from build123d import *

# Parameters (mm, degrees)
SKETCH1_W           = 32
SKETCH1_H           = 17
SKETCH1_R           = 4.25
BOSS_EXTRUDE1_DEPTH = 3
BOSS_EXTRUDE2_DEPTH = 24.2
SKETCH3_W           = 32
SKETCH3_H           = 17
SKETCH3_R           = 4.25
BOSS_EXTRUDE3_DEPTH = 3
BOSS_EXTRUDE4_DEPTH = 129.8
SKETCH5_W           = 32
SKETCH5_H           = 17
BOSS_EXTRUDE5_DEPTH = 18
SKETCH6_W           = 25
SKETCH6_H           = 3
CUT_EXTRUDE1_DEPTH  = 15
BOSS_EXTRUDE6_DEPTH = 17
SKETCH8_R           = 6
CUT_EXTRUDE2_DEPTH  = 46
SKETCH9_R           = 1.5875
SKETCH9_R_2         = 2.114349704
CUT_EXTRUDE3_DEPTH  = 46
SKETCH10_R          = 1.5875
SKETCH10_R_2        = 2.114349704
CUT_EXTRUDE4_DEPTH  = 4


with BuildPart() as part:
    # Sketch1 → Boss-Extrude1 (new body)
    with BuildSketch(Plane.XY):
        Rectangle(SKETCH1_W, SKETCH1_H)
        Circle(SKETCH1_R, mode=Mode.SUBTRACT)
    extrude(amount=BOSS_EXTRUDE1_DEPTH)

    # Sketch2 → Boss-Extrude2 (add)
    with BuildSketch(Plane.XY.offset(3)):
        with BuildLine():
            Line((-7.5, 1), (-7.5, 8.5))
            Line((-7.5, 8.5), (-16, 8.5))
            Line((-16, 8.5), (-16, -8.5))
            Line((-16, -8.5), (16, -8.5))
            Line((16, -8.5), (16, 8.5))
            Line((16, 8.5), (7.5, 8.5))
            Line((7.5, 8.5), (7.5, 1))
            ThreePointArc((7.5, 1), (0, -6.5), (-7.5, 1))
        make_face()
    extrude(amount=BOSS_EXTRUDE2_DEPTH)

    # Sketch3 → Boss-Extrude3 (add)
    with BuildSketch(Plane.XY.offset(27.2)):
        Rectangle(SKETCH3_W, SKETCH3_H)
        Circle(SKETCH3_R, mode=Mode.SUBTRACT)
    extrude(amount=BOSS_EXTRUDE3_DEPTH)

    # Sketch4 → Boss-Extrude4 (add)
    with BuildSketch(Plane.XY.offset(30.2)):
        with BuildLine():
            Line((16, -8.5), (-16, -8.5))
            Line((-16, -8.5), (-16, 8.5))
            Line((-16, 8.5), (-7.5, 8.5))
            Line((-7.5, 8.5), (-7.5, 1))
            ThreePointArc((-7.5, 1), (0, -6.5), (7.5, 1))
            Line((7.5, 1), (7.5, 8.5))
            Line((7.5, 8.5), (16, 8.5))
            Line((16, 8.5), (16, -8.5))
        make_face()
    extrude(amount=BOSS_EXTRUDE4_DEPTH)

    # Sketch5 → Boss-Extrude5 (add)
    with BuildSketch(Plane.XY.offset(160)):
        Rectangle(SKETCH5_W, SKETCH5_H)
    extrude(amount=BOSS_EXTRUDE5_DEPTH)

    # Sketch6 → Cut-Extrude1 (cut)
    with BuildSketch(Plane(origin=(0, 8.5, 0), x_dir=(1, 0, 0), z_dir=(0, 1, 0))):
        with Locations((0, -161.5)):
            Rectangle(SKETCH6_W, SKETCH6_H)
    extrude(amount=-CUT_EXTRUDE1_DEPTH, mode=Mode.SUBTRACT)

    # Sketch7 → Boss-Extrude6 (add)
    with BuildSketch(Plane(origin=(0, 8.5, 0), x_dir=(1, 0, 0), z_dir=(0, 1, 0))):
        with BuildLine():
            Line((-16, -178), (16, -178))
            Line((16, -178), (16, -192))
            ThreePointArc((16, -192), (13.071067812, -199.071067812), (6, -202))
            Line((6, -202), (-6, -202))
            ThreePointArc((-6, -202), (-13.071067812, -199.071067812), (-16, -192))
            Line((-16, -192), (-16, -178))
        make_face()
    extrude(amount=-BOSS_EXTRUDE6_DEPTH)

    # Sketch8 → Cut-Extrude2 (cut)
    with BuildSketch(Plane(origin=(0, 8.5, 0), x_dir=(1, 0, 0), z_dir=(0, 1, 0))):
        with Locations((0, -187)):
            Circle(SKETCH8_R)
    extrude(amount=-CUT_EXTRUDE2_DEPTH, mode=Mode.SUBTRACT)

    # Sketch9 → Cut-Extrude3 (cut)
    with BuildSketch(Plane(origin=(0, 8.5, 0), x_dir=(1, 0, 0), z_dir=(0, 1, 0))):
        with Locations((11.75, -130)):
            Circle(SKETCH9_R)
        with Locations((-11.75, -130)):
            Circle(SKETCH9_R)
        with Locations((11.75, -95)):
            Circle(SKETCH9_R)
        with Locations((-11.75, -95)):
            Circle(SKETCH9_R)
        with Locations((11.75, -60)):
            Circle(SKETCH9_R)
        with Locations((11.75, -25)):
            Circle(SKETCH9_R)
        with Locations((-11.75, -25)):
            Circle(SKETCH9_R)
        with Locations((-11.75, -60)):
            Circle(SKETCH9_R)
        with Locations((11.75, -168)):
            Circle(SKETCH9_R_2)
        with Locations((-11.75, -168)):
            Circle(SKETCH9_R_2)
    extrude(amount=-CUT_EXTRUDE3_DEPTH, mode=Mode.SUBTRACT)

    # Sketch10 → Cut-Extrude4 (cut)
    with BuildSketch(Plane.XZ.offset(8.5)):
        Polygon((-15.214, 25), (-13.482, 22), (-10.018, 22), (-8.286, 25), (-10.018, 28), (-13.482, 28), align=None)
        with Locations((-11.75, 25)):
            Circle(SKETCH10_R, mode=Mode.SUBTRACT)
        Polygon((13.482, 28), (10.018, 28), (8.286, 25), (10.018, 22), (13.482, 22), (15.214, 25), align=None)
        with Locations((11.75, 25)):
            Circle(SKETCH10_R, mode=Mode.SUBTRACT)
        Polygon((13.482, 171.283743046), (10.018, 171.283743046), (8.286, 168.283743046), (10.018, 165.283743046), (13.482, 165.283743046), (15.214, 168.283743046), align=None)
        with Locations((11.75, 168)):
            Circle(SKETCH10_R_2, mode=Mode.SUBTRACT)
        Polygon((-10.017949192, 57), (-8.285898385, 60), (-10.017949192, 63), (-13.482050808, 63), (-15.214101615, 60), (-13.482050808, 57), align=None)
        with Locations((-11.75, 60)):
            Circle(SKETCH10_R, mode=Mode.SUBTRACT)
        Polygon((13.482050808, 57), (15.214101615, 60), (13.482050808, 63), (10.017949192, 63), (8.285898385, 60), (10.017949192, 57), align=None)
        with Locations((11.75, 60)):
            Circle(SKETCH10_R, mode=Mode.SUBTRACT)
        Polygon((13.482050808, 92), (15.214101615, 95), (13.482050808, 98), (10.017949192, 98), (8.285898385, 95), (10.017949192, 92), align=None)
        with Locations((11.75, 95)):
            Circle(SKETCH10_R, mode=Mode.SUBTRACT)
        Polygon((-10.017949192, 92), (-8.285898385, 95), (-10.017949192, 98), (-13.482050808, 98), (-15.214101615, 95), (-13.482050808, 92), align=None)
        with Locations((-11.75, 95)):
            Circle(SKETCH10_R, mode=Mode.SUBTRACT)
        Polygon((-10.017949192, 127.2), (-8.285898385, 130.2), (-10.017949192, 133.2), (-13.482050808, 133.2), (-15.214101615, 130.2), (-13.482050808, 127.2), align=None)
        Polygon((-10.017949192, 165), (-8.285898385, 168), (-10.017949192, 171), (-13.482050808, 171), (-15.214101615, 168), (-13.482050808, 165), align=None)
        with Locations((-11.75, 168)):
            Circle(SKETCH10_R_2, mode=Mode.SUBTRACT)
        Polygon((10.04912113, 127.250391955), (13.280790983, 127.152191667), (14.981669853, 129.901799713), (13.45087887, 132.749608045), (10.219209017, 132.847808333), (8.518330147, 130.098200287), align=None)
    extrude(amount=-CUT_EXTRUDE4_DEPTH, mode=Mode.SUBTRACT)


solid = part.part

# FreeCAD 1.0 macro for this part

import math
import FreeCAD as App
import Part
import Sketcher

V = App.Vector
Q = App.Units.Quantity


def add_polygon(sketch, points):
    """Adds a closed chain of lines whose ends are joined by coincident constraints."""
    first, n = sketch.GeometryCount, len(points)
    for a, b in zip(points, points[1:] + points[:1]):
        sketch.addGeometry(Part.LineSegment(App.Vector(*a, 0), App.Vector(*b, 0)), False)
    for i in range(n):
        sketch.addConstraint(Sketcher.Constraint("Coincident", first + i, 2, first + (i + 1) % n, 1))

doc = App.newDocument("Part")
params = doc.addObject("Spreadsheet::Sheet", "Params")
for row, (alias, value) in enumerate([
    ("sketch1_diameter", "8.5 mm"),
    ("sketch1_width", "32 mm"),
    ("sketch1_height", "17 mm"),
    ("pad1_length", "3 mm"),
    ("sketch2_radius", "7.5 mm"),
    ("sketch2_width", "32 mm"),
    ("sketch2_height", "17 mm"),
    ("sketch2_height2", "7.5 mm"),
    ("pad2_length", "24.2 mm"),
    ("sketch3_diameter", "8.5 mm"),
    ("sketch3_width", "32 mm"),
    ("sketch3_height", "17 mm"),
    ("pad3_length", "3 mm"),
    ("sketch4_radius", "7.5 mm"),
    ("sketch4_width", "32 mm"),
    ("sketch4_height", "17 mm"),
    ("sketch4_height2", "7.5 mm"),
    ("pad4_length", "129.8 mm"),
    ("sketch5_width", "32 mm"),
    ("sketch5_height", "17 mm"),
    ("pad5_length", "18 mm"),
    ("sketch6_width", "25 mm"),
    ("sketch6_height", "3 mm"),
    ("pocket1_length", "15 mm"),
    ("sketch7_radius", "10 mm"),
    ("sketch7_width", "32 mm"),
    ("sketch7_height", "14 mm"),
    ("pad6_length", "17 mm"),
    ("sketch8_diameter", "12 mm"),
    ("pocket2_length", "46 mm"),
    ("pocket3_length", "46 mm"),
    ("pocket4_length", "4 mm"),
], start=1):
    params.set(f"A{row}", alias)
    params.set(f"B{row}", "=" + value)
    params.setAlias(f"B{row}", alias)

body = doc.addObject("PartDesign::Body", "Body")

# Sketch on XY plane
sketch1 = body.newObject("Sketcher::SketchObject", "Sketch")
sketch1.AttachmentSupport = (doc.getObject("XY_Plane"), [""])
sketch1.MapMode = "FlatFace"
add_polygon(sketch1, [(-16, 8.5), (-16, -8.5), (16, -8.5), (16, 8.5)])  # lines 0-3
sketch1.addGeometry(Part.Circle(V(0, 0, 0), V(0, 0, 1), 4.2), False)  # 4
sketch1.addConstraint(Sketcher.Constraint("Vertical", 0))
sketch1.addConstraint(Sketcher.Constraint("Horizontal", 1))
sketch1.addConstraint(Sketcher.Constraint("Vertical", 2))
sketch1.addConstraint(Sketcher.Constraint("Horizontal", 3))
sketch1.addConstraint(Sketcher.Constraint("Coincident", 4, 3, -1, 1))
sketch1.addConstraint(Sketcher.Constraint("Symmetric", 0, 2, 2, 2, -1, 1))
sketch1.addConstraint(Sketcher.Constraint("Diameter", 4, 8.5))
sketch1.addConstraint(Sketcher.Constraint("DistanceX", 1, 1, 1, 2, 32.0))
sketch1.addConstraint(Sketcher.Constraint("DistanceY", 0, 2, 0, 1, 17.0))
sketch1.setExpression("Constraints[10]", "Params.sketch1_diameter")
sketch1.setExpression("Constraints[11]", "Params.sketch1_width")
sketch1.setExpression("Constraints[12]", "Params.sketch1_height")
pad1 = body.newObject("PartDesign::Pad", "Pad")
pad1.Profile = sketch1
pad1.setExpression("Length", "Params.pad1_length")

# Sketch on XY plane
sketch2 = body.newObject("Sketcher::SketchObject", "Sketch001")
sketch2.AttachmentSupport = (doc.getObject("XY_Plane"), [""])
sketch2.MapMode = "FlatFace"
sketch2.AttachmentOffset = App.Placement(V(0, 0, 3), App.Rotation())
sketch2.addGeometry(Part.LineSegment(V(-8, 1, 0), V(-8, 8, 0)), False)
sketch2.addGeometry(Part.LineSegment(V(-8, 8, 0), V(-16, 8, 0)), False)
sketch2.addGeometry(Part.LineSegment(V(-16, 8, 0), V(-16, -8, 0)), False)
sketch2.addGeometry(Part.LineSegment(V(-16, -8, 0), V(16, -8, 0)), False)
sketch2.addGeometry(Part.LineSegment(V(16, -8, 0), V(16, 8, 0)), False)
sketch2.addGeometry(Part.LineSegment(V(16, 8, 0), V(8, 8, 0)), False)
sketch2.addGeometry(Part.LineSegment(V(8, 8, 0), V(8, 1, 0)), False)
sketch2.addGeometry(Part.ArcOfCircle(Part.Circle(V(0, 1, 0), V(0, 0, 1), 8), math.radians(180), math.radians(360)), False)
sketch2.addConstraint(Sketcher.Constraint("Coincident", 0, 2, 1, 1))
sketch2.addConstraint(Sketcher.Constraint("Coincident", 1, 2, 2, 1))
sketch2.addConstraint(Sketcher.Constraint("Coincident", 2, 2, 3, 1))
sketch2.addConstraint(Sketcher.Constraint("Coincident", 3, 2, 4, 1))
sketch2.addConstraint(Sketcher.Constraint("Coincident", 4, 2, 5, 1))
sketch2.addConstraint(Sketcher.Constraint("Coincident", 5, 2, 6, 1))
sketch2.addConstraint(Sketcher.Constraint("Tangent", 6, 2, 7, 2))
sketch2.addConstraint(Sketcher.Constraint("Tangent", 7, 1, 0, 1))
sketch2.addConstraint(Sketcher.Constraint("Vertical", 0))
sketch2.addConstraint(Sketcher.Constraint("Horizontal", 1))
sketch2.addConstraint(Sketcher.Constraint("Vertical", 2))
sketch2.addConstraint(Sketcher.Constraint("Horizontal", 3))
sketch2.addConstraint(Sketcher.Constraint("Vertical", 4))
sketch2.addConstraint(Sketcher.Constraint("Horizontal", 5))
sketch2.addConstraint(Sketcher.Constraint("Vertical", 6))
sketch2.addConstraint(Sketcher.Constraint("Symmetric", 1, 2, 3, 2, -1, 1))
sketch2.addConstraint(Sketcher.Constraint("Symmetric", 0, 2, 5, 2, -2))
sketch2.addConstraint(Sketcher.Constraint("Radius", 7, 7.5))
sketch2.addConstraint(Sketcher.Constraint("DistanceX", 3, 1, 3, 2, 32.0))
sketch2.addConstraint(Sketcher.Constraint("DistanceY", 2, 2, 2, 1, 17.0))
sketch2.addConstraint(Sketcher.Constraint("DistanceY", 0, 1, 0, 2, 7.5))
sketch2.setExpression("Constraints[17]", "Params.sketch2_radius")
sketch2.setExpression("Constraints[18]", "Params.sketch2_width")
sketch2.setExpression("Constraints[19]", "Params.sketch2_height")
sketch2.setExpression("Constraints[20]", "Params.sketch2_height2")
pad2 = body.newObject("PartDesign::Pad", "Pad001")
pad2.Profile = sketch2
pad2.setExpression("Length", "Params.pad2_length")

# Sketch on XY plane
sketch3 = body.newObject("Sketcher::SketchObject", "Sketch002")
sketch3.AttachmentSupport = (doc.getObject("XY_Plane"), [""])
sketch3.MapMode = "FlatFace"
sketch3.AttachmentOffset = App.Placement(V(0, 0, 27.2), App.Rotation())
add_polygon(sketch3, [(-16, 8.5), (-16, -8.5), (16, -8.5), (16, 8.5)])  # lines 0-3
sketch3.addGeometry(Part.Circle(V(0, 0, 0), V(0, 0, 1), 4.2), False)  # 4
sketch3.addConstraint(Sketcher.Constraint("Vertical", 0))
sketch3.addConstraint(Sketcher.Constraint("Horizontal", 1))
sketch3.addConstraint(Sketcher.Constraint("Vertical", 2))
sketch3.addConstraint(Sketcher.Constraint("Horizontal", 3))
sketch3.addConstraint(Sketcher.Constraint("Coincident", 4, 3, -1, 1))
sketch3.addConstraint(Sketcher.Constraint("Symmetric", 0, 2, 2, 2, -1, 1))
sketch3.addConstraint(Sketcher.Constraint("Diameter", 4, 8.5))
sketch3.addConstraint(Sketcher.Constraint("DistanceX", 1, 1, 1, 2, 32.0))
sketch3.addConstraint(Sketcher.Constraint("DistanceY", 0, 2, 0, 1, 17.0))
sketch3.setExpression("Constraints[10]", "Params.sketch3_diameter")
sketch3.setExpression("Constraints[11]", "Params.sketch3_width")
sketch3.setExpression("Constraints[12]", "Params.sketch3_height")
pad3 = body.newObject("PartDesign::Pad", "Pad002")
pad3.Profile = sketch3
pad3.setExpression("Length", "Params.pad3_length")

# Sketch on XY plane
sketch4 = body.newObject("Sketcher::SketchObject", "Sketch003")
sketch4.AttachmentSupport = (doc.getObject("XY_Plane"), [""])
sketch4.MapMode = "FlatFace"
sketch4.AttachmentOffset = App.Placement(V(0, 0, 30.2), App.Rotation())
sketch4.addGeometry(Part.LineSegment(V(-16, -8, 0), V(16, -8, 0)), False)
sketch4.addGeometry(Part.LineSegment(V(16, -8, 0), V(16, 8, 0)), False)
sketch4.addGeometry(Part.LineSegment(V(16, 8, 0), V(8, 8, 0)), False)
sketch4.addGeometry(Part.LineSegment(V(8, 8, 0), V(8, 1, 0)), False)
sketch4.addGeometry(Part.ArcOfCircle(Part.Circle(V(0, 1, 0), V(0, 0, 1), 8), math.radians(180), math.radians(360)), False)
sketch4.addGeometry(Part.LineSegment(V(-8, 1, 0), V(-8, 8, 0)), False)
sketch4.addGeometry(Part.LineSegment(V(-8, 8, 0), V(-16, 8, 0)), False)
sketch4.addGeometry(Part.LineSegment(V(-16, 8, 0), V(-16, -8, 0)), False)
sketch4.addConstraint(Sketcher.Constraint("Coincident", 0, 2, 1, 1))
sketch4.addConstraint(Sketcher.Constraint("Coincident", 1, 2, 2, 1))
sketch4.addConstraint(Sketcher.Constraint("Coincident", 2, 2, 3, 1))
sketch4.addConstraint(Sketcher.Constraint("Tangent", 3, 2, 4, 2))
sketch4.addConstraint(Sketcher.Constraint("Tangent", 4, 1, 5, 1))
sketch4.addConstraint(Sketcher.Constraint("Coincident", 5, 2, 6, 1))
sketch4.addConstraint(Sketcher.Constraint("Coincident", 6, 2, 7, 1))
sketch4.addConstraint(Sketcher.Constraint("Coincident", 7, 2, 0, 1))
sketch4.addConstraint(Sketcher.Constraint("Horizontal", 0))
sketch4.addConstraint(Sketcher.Constraint("Vertical", 1))
sketch4.addConstraint(Sketcher.Constraint("Horizontal", 2))
sketch4.addConstraint(Sketcher.Constraint("Vertical", 3))
sketch4.addConstraint(Sketcher.Constraint("Vertical", 5))
sketch4.addConstraint(Sketcher.Constraint("Horizontal", 6))
sketch4.addConstraint(Sketcher.Constraint("Vertical", 7))
sketch4.addConstraint(Sketcher.Constraint("Symmetric", 0, 2, 6, 2, -1, 1))
sketch4.addConstraint(Sketcher.Constraint("Symmetric", 2, 2, 5, 2, -2))
sketch4.addConstraint(Sketcher.Constraint("Radius", 4, 7.5))
sketch4.addConstraint(Sketcher.Constraint("DistanceX", 0, 1, 0, 2, 32.0))
sketch4.addConstraint(Sketcher.Constraint("DistanceY", 1, 1, 1, 2, 17.0))
sketch4.addConstraint(Sketcher.Constraint("DistanceY", 3, 2, 3, 1, 7.5))
sketch4.setExpression("Constraints[17]", "Params.sketch4_radius")
sketch4.setExpression("Constraints[18]", "Params.sketch4_width")
sketch4.setExpression("Constraints[19]", "Params.sketch4_height")
sketch4.setExpression("Constraints[20]", "Params.sketch4_height2")
pad4 = body.newObject("PartDesign::Pad", "Pad003")
pad4.Profile = sketch4
pad4.setExpression("Length", "Params.pad4_length")

# Sketch on XY plane
sketch5 = body.newObject("Sketcher::SketchObject", "Sketch004")
sketch5.AttachmentSupport = (doc.getObject("XY_Plane"), [""])
sketch5.MapMode = "FlatFace"
sketch5.AttachmentOffset = App.Placement(V(0, 0, 160), App.Rotation())
add_polygon(sketch5, [(-16, 8), (-16, -8), (16, -8), (16, 8)])  # lines 0-3
sketch5.addConstraint(Sketcher.Constraint("Vertical", 0))
sketch5.addConstraint(Sketcher.Constraint("Horizontal", 1))
sketch5.addConstraint(Sketcher.Constraint("Vertical", 2))
sketch5.addConstraint(Sketcher.Constraint("Horizontal", 3))
sketch5.addConstraint(Sketcher.Constraint("Symmetric", 0, 2, 2, 2, -1, 1))
sketch5.addConstraint(Sketcher.Constraint("DistanceX", 1, 1, 1, 2, 32.0))
sketch5.addConstraint(Sketcher.Constraint("DistanceY", 0, 2, 0, 1, 17.0))
sketch5.setExpression("Constraints[9]", "Params.sketch5_width")
sketch5.setExpression("Constraints[10]", "Params.sketch5_height")
pad5 = body.newObject("PartDesign::Pad", "Pad004")
pad5.Profile = sketch5
pad5.setExpression("Length", "Params.pad5_length")

# Sketch on XZ plane
sketch6 = body.newObject("Sketcher::SketchObject", "Sketch005")
sketch6.AttachmentSupport = (doc.getObject("XZ_Plane"), [""])
sketch6.MapMode = "FlatFace"
sketch6.AttachmentOffset = App.Placement(V(0, 0, -8.5), App.Rotation())
add_polygon(sketch6, [(-12.5, 160), (-12.5, 163), (12.5, 163), (12.5, 160)])  # lines 0-3
sketch6.addConstraint(Sketcher.Constraint("Vertical", 0))
sketch6.addConstraint(Sketcher.Constraint("Horizontal", 1))
sketch6.addConstraint(Sketcher.Constraint("Vertical", 2))
sketch6.addConstraint(Sketcher.Constraint("Horizontal", 3))
sketch6.addConstraint(Sketcher.Constraint("DistanceX", 1, 1, 1, 2, 25.0))
sketch6.addConstraint(Sketcher.Constraint("DistanceY", 0, 1, 0, 2, 3.0))
sketch6.addConstraint(Sketcher.Constraint("DistanceY", -1, 1, 0, 2, 163.0))
sketch6.addConstraint(Sketcher.Constraint("DistanceX", 0, 2, -1, 1, 12.5))
sketch6.setExpression("Constraints[8]", "Params.sketch6_width")
sketch6.setExpression("Constraints[9]", "Params.sketch6_height")
pocket1 = body.newObject("PartDesign::Pocket", "Pocket")
pocket1.Profile = sketch6
pocket1.setExpression("Length", "Params.pocket1_length")
pocket1.Reversed = True

# Sketch on XZ plane
sketch7 = body.newObject("Sketcher::SketchObject", "Sketch006")
sketch7.AttachmentSupport = (doc.getObject("XZ_Plane"), [""])
sketch7.MapMode = "FlatFace"
sketch7.AttachmentOffset = App.Placement(V(0, 0, -8.5), App.Rotation())
sketch7.addGeometry(Part.LineSegment(V(16, 178, 0), V(-16, 178, 0)), False)
sketch7.addGeometry(Part.LineSegment(V(-16, 178, 0), V(-16, 192, 0)), False)
sketch7.addGeometry(Part.ArcOfCircle(Part.Circle(V(-6, 192, 0), V(0, 0, 1), 10), math.radians(90), math.radians(180)), False)
sketch7.addGeometry(Part.LineSegment(V(-6, 202, 0), V(6, 202, 0)), False)
sketch7.addGeometry(Part.ArcOfCircle(Part.Circle(V(6, 192, 0), V(0, 0, 1), 10), math.radians(0), math.radians(90)), False)
sketch7.addGeometry(Part.LineSegment(V(16, 192, 0), V(16, 178, 0)), False)
sketch7.addConstraint(Sketcher.Constraint("Coincident", 0, 2, 1, 1))
sketch7.addConstraint(Sketcher.Constraint("Tangent", 1, 2, 2, 2))
sketch7.addConstraint(Sketcher.Constraint("Tangent", 2, 1, 3, 1))
sketch7.addConstraint(Sketcher.Constraint("Tangent", 3, 2, 4, 2))
sketch7.addConstraint(Sketcher.Constraint("Tangent", 4, 1, 5, 1))
sketch7.addConstraint(Sketcher.Constraint("Coincident", 5, 2, 0, 1))
sketch7.addConstraint(Sketcher.Constraint("Horizontal", 0))
sketch7.addConstraint(Sketcher.Constraint("Vertical", 1))
sketch7.addConstraint(Sketcher.Constraint("Horizontal", 3))
sketch7.addConstraint(Sketcher.Constraint("Vertical", 5))
sketch7.addConstraint(Sketcher.Constraint("Equal", 2, 4))
sketch7.addConstraint(Sketcher.Constraint("Radius", 2, 10.0))
sketch7.addConstraint(Sketcher.Constraint("DistanceX", 0, 2, 0, 1, 32.0))
sketch7.addConstraint(Sketcher.Constraint("DistanceY", 1, 1, 1, 2, 14.0))
sketch7.addConstraint(Sketcher.Constraint("DistanceX", 2, 3, -1, 1, 6.0))
sketch7.addConstraint(Sketcher.Constraint("DistanceY", -1, 1, 2, 3, 192.0))
sketch7.setExpression("Constraints[11]", "Params.sketch7_radius")
sketch7.setExpression("Constraints[12]", "Params.sketch7_width")
sketch7.setExpression("Constraints[13]", "Params.sketch7_height")
pad6 = body.newObject("PartDesign::Pad", "Pad005")
pad6.Profile = sketch7
pad6.setExpression("Length", "Params.pad6_length")

# Sketch on XZ plane
sketch8 = body.newObject("Sketcher::SketchObject", "Sketch007")
sketch8.AttachmentSupport = (doc.getObject("XZ_Plane"), [""])
sketch8.MapMode = "FlatFace"
sketch8.AttachmentOffset = App.Placement(V(0, 0, -8.5), App.Rotation())
sketch8.addGeometry(Part.Circle(V(0, 187, 0), V(0, 0, 1), 6), False)
sketch8.addConstraint(Sketcher.Constraint("PointOnObject", 0, 3, -2))
sketch8.addConstraint(Sketcher.Constraint("Diameter", 0, 12.0))
sketch8.addConstraint(Sketcher.Constraint("DistanceY", -1, 1, 0, 3, 187.0))
sketch8.setExpression("Constraints[1]", "Params.sketch8_diameter")
pocket2 = body.newObject("PartDesign::Pocket", "Pocket001")
pocket2.Profile = sketch8
pocket2.setExpression("Length", "Params.pocket2_length")
pocket2.Reversed = True

# Sketch on XZ plane
sketch9 = body.newObject("Sketcher::SketchObject", "Sketch008")
sketch9.AttachmentSupport = (doc.getObject("XZ_Plane"), [""])
sketch9.MapMode = "FlatFace"
sketch9.AttachmentOffset = App.Placement(V(0, 0, -8.5), App.Rotation())
sketch9.addGeometry(Part.Circle(V(11.8, 130, 0), V(0, 0, 1), 1.6), False)
sketch9.addGeometry(Part.Circle(V(-11.8, 130, 0), V(0, 0, 1), 1.6), False)
sketch9.addGeometry(Part.Circle(V(11.8, 95, 0), V(0, 0, 1), 1.6), False)
sketch9.addGeometry(Part.Circle(V(-11.8, 95, 0), V(0, 0, 1), 1.6), False)
sketch9.addGeometry(Part.Circle(V(11.8, 60, 0), V(0, 0, 1), 1.6), False)
sketch9.addGeometry(Part.Circle(V(11.8, 25, 0), V(0, 0, 1), 1.6), False)
sketch9.addGeometry(Part.Circle(V(-11.8, 25, 0), V(0, 0, 1), 1.6), False)
sketch9.addGeometry(Part.Circle(V(-11.8, 60, 0), V(0, 0, 1), 1.6), False)
sketch9.addGeometry(Part.Circle(V(11.8, 168, 0), V(0, 0, 1), 2.1), False)
sketch9.addGeometry(Part.Circle(V(-11.8, 168, 0), V(0, 0, 1), 2.1), False)
sketch9.addConstraint(Sketcher.Constraint("Equal", 0, 1))
sketch9.addConstraint(Sketcher.Constraint("Equal", 1, 2))
sketch9.addConstraint(Sketcher.Constraint("Equal", 2, 3))
sketch9.addConstraint(Sketcher.Constraint("Equal", 3, 4))
sketch9.addConstraint(Sketcher.Constraint("Equal", 4, 5))
sketch9.addConstraint(Sketcher.Constraint("Equal", 5, 6))
sketch9.addConstraint(Sketcher.Constraint("Equal", 6, 7))
sketch9.addConstraint(Sketcher.Constraint("Equal", 8, 9))
sketch9.addConstraint(Sketcher.Constraint("Symmetric", 0, 3, 1, 3, -2))
sketch9.addConstraint(Sketcher.Constraint("Symmetric", 2, 3, 3, 3, -2))
sketch9.addConstraint(Sketcher.Constraint("Symmetric", 5, 3, 6, 3, -2))
sketch9.addConstraint(Sketcher.Constraint("Symmetric", 4, 3, 7, 3, -2))
sketch9.addConstraint(Sketcher.Constraint("Symmetric", 8, 3, 9, 3, -2))
sketch9.addConstraint(Sketcher.Constraint("Vertical", 0, 3, 2, 3))
sketch9.addConstraint(Sketcher.Constraint("Vertical", 2, 3, 4, 3))
sketch9.addConstraint(Sketcher.Constraint("Vertical", 4, 3, 5, 3))
sketch9.addConstraint(Sketcher.Constraint("Vertical", 5, 3, 8, 3))
sketch9.addConstraint(Sketcher.Constraint("Diameter", 0, 3.175))
sketch9.addConstraint(Sketcher.Constraint("DistanceY", -1, 1, 0, 3, 130.0))
sketch9.addConstraint(Sketcher.Constraint("DistanceY", -1, 1, 2, 3, 95.0))
sketch9.addConstraint(Sketcher.Constraint("DistanceY", -1, 1, 4, 3, 60.0))
sketch9.addConstraint(Sketcher.Constraint("DistanceY", -1, 1, 5, 3, 25.0))
sketch9.addConstraint(Sketcher.Constraint("DistanceY", -1, 1, 8, 3, 168.0))
sketch9.addConstraint(Sketcher.Constraint("Diameter", 8, 4.228699))
sketch9.addConstraint(Sketcher.Constraint("DistanceX", 1, 3, 0, 3, 23.5))
pocket3 = body.newObject("PartDesign::Pocket", "Pocket002")
pocket3.Profile = sketch9
pocket3.setExpression("Length", "Params.pocket3_length")
pocket3.Reversed = True

# Sketch on XZ plane
sketch10 = body.newObject("Sketcher::SketchObject", "Sketch009")
sketch10.AttachmentSupport = (doc.getObject("XZ_Plane"), [""])
sketch10.MapMode = "FlatFace"
sketch10.AttachmentOffset = App.Placement(V(0, 0, 8.5), App.Rotation())
add_polygon(sketch10, [(-15.2, 25), (-13.5, 22), (-10, 22), (-8.3, 25), (-10, 28), (-13.5, 28)])  # lines 0-5
sketch10.addGeometry(Part.Circle(V(-11.8, 25, 0), V(0, 0, 1), 1.6), False)  # 6
add_polygon(sketch10, [(13.5, 28), (10, 28), (8.3, 25), (10, 22), (13.5, 22), (15.2, 25)])  # lines 7-12
sketch10.addGeometry(Part.Circle(V(11.8, 25, 0), V(0, 0, 1), 1.6), False)  # 13
add_polygon(sketch10, [(13.5, 171.3), (10, 171.3), (8.3, 168.3), (10, 165.3), (13.5, 165.3), (15.2, 168.3)])  # lines 14-19
sketch10.addGeometry(Part.Circle(V(11.8, 168, 0), V(0, 0, 1), 2.1), False)  # 20
add_polygon(sketch10, [(-10, 57), (-8.3, 60), (-10, 63), (-13.5, 63), (-15.2, 60), (-13.5, 57)])  # lines 21-26
sketch10.addGeometry(Part.Circle(V(-11.8, 60, 0), V(0, 0, 1), 1.6), False)  # 27
add_polygon(sketch10, [(13.5, 57), (15.2, 60), (13.5, 63), (10, 63), (8.3, 60), (10, 57)])  # lines 28-33
sketch10.addGeometry(Part.Circle(V(11.8, 60, 0), V(0, 0, 1), 1.6), False)  # 34
add_polygon(sketch10, [(13.5, 92), (15.2, 95), (13.5, 98), (10, 98), (8.3, 95), (10, 92)])  # lines 35-40
sketch10.addGeometry(Part.Circle(V(11.8, 95, 0), V(0, 0, 1), 1.6), False)  # 41
add_polygon(sketch10, [(-10, 92), (-8.3, 95), (-10, 98), (-13.5, 98), (-15.2, 95), (-13.5, 92)])  # lines 42-47
sketch10.addGeometry(Part.Circle(V(-11.8, 95, 0), V(0, 0, 1), 1.6), False)  # 48
add_polygon(sketch10, [(-10, 127.2), (-8.3, 130.2), (-10, 133.2), (-13.5, 133.2), (-15.2, 130.2), (-13.5, 127.2)])  # lines 49-54
add_polygon(sketch10, [(-10, 165), (-8.3, 168), (-10, 171), (-13.5, 171), (-15.2, 168), (-13.5, 165)])  # lines 55-60
sketch10.addGeometry(Part.Circle(V(-11.8, 168, 0), V(0, 0, 1), 2.1), False)  # 61
add_polygon(sketch10, [(10, 127.3), (13.3, 127.2), (15, 129.9), (13.5, 132.7), (10.2, 132.8), (8.5, 130.1)])  # lines 62-67
sketch10.addConstraint(Sketcher.Constraint("Horizontal", 1))
sketch10.addConstraint(Sketcher.Constraint("Horizontal", 4))
sketch10.addConstraint(Sketcher.Constraint("Horizontal", 7))
sketch10.addConstraint(Sketcher.Constraint("Horizontal", 10))
sketch10.addConstraint(Sketcher.Constraint("Horizontal", 14))
sketch10.addConstraint(Sketcher.Constraint("Horizontal", 17))
sketch10.addConstraint(Sketcher.Constraint("Horizontal", 23))
sketch10.addConstraint(Sketcher.Constraint("Horizontal", 26))
sketch10.addConstraint(Sketcher.Constraint("Horizontal", 30))
sketch10.addConstraint(Sketcher.Constraint("Horizontal", 33))
sketch10.addConstraint(Sketcher.Constraint("Horizontal", 37))
sketch10.addConstraint(Sketcher.Constraint("Horizontal", 40))
sketch10.addConstraint(Sketcher.Constraint("Horizontal", 44))
sketch10.addConstraint(Sketcher.Constraint("Horizontal", 47))
sketch10.addConstraint(Sketcher.Constraint("Horizontal", 51))
sketch10.addConstraint(Sketcher.Constraint("Horizontal", 54))
sketch10.addConstraint(Sketcher.Constraint("Horizontal", 57))
sketch10.addConstraint(Sketcher.Constraint("Horizontal", 60))
sketch10.addConstraint(Sketcher.Constraint("Equal", 6, 13))
sketch10.addConstraint(Sketcher.Constraint("Equal", 13, 27))
sketch10.addConstraint(Sketcher.Constraint("Equal", 27, 34))
sketch10.addConstraint(Sketcher.Constraint("Equal", 34, 41))
sketch10.addConstraint(Sketcher.Constraint("Equal", 41, 48))
sketch10.addConstraint(Sketcher.Constraint("Equal", 20, 61))
sketch10.addConstraint(Sketcher.Constraint("Symmetric", 6, 3, 13, 3, -2))
sketch10.addConstraint(Sketcher.Constraint("Symmetric", 27, 3, 34, 3, -2))
sketch10.addConstraint(Sketcher.Constraint("Symmetric", 41, 3, 48, 3, -2))
sketch10.addConstraint(Sketcher.Constraint("Symmetric", 20, 3, 61, 3, -2))
sketch10.addConstraint(Sketcher.Constraint("Symmetric", 3, 2, 7, 2, -2))
sketch10.addConstraint(Sketcher.Constraint("Symmetric", 2, 2, 8, 2, -2))
sketch10.addConstraint(Sketcher.Constraint("Symmetric", 1, 2, 9, 2, -2))
sketch10.addConstraint(Sketcher.Constraint("Symmetric", 5, 2, 11, 2, -2))
sketch10.addConstraint(Sketcher.Constraint("Symmetric", 24, 2, 28, 2, -2))
sketch10.addConstraint(Sketcher.Constraint("Symmetric", 23, 2, 29, 2, -2))
sketch10.addConstraint(Sketcher.Constraint("Symmetric", 21, 2, 31, 2, -2))
sketch10.addConstraint(Sketcher.Constraint("Symmetric", 26, 2, 32, 2, -2))
sketch10.addConstraint(Sketcher.Constraint("Symmetric", 38, 2, 42, 2, -2))
sketch10.addConstraint(Sketcher.Constraint("Symmetric", 37, 2, 43, 2, -2))
sketch10.addConstraint(Sketcher.Constraint("Symmetric", 35, 2, 45, 2, -2))
sketch10.addConstraint(Sketcher.Constraint("Symmetric", 40, 2, 46, 2, -2))
sketch10.addConstraint(Sketcher.Constraint("Parallel", 0, 3))
sketch10.addConstraint(Sketcher.Constraint("Parallel", 2, 5))
sketch10.addConstraint(Sketcher.Constraint("Parallel", 5, 8))
sketch10.addConstraint(Sketcher.Constraint("Parallel", 8, 11))
sketch10.addConstraint(Sketcher.Constraint("Parallel", 9, 12))
sketch10.addConstraint(Sketcher.Constraint("Parallel", 11, 15))
sketch10.addConstraint(Sketcher.Constraint("Parallel", 12, 16))
sketch10.addConstraint(Sketcher.Constraint("Parallel", 15, 18))
sketch10.addConstraint(Sketcher.Constraint("Parallel", 16, 19))
sketch10.addConstraint(Sketcher.Constraint("Parallel", 21, 24))
sketch10.addConstraint(Sketcher.Constraint("Parallel", 22, 25))
sketch10.addConstraint(Sketcher.Constraint("Parallel", 24, 28))
sketch10.addConstraint(Sketcher.Constraint("Parallel", 25, 29))
sketch10.addConstraint(Sketcher.Constraint("Parallel", 28, 31))
sketch10.addConstraint(Sketcher.Constraint("Parallel", 31, 35))
sketch10.addConstraint(Sketcher.Constraint("Parallel", 32, 36))
sketch10.addConstraint(Sketcher.Constraint("Parallel", 35, 38))
sketch10.addConstraint(Sketcher.Constraint("Parallel", 36, 39))
sketch10.addConstraint(Sketcher.Constraint("Parallel", 38, 42))
sketch10.addConstraint(Sketcher.Constraint("Parallel", 42, 45))
sketch10.addConstraint(Sketcher.Constraint("Parallel", 45, 49))
sketch10.addConstraint(Sketcher.Constraint("Parallel", 46, 50))
sketch10.addConstraint(Sketcher.Constraint("Parallel", 49, 52))
sketch10.addConstraint(Sketcher.Constraint("Parallel", 50, 53))
sketch10.addConstraint(Sketcher.Constraint("Parallel", 52, 55))
sketch10.addConstraint(Sketcher.Constraint("Parallel", 53, 56))
sketch10.addConstraint(Sketcher.Constraint("Parallel", 55, 58))
sketch10.addConstraint(Sketcher.Constraint("Parallel", 56, 59))
sketch10.addConstraint(Sketcher.Constraint("Parallel", 62, 65))
sketch10.addConstraint(Sketcher.Constraint("Parallel", 63, 66))
sketch10.addConstraint(Sketcher.Constraint("Parallel", 64, 67))
sketch10.addConstraint(Sketcher.Constraint("Horizontal", 13, 3, 2, 2))
sketch10.addConstraint(Sketcher.Constraint("Horizontal", 2, 2, 5, 2))
sketch10.addConstraint(Sketcher.Constraint("Horizontal", 15, 2, 18, 2))
sketch10.addConstraint(Sketcher.Constraint("Horizontal", 34, 3, 21, 2))
sketch10.addConstraint(Sketcher.Constraint("Horizontal", 21, 2, 24, 2))
sketch10.addConstraint(Sketcher.Constraint("Horizontal", 48, 3, 35, 2))
sketch10.addConstraint(Sketcher.Constraint("Horizontal", 35, 2, 38, 2))
sketch10.addConstraint(Sketcher.Constraint("Horizontal", 49, 2, 52, 2))
sketch10.addConstraint(Sketcher.Constraint("Horizontal", 61, 3, 55, 2))
sketch10.addConstraint(Sketcher.Constraint("Horizontal", 55, 2, 58, 2))
sketch10.addConstraint(Sketcher.Constraint("Vertical", 13, 3, 20, 3))
sketch10.addConstraint(Sketcher.Constraint("Vertical", 6, 3, 27, 3))
sketch10.addConstraint(Sketcher.Constraint("Vertical", 34, 3, 41, 3))
sketch10.addConstraint(Sketcher.Constraint("Vertical", 1, 2, 3, 2))
sketch10.addConstraint(Sketcher.Constraint("Vertical", 9, 2, 14, 2))
sketch10.addConstraint(Sketcher.Constraint("Vertical", 8, 2, 15, 2))
sketch10.addConstraint(Sketcher.Constraint("Vertical", 14, 2, 16, 2))
sketch10.addConstraint(Sketcher.Constraint("Vertical", 12, 2, 17, 2))
sketch10.addConstraint(Sketcher.Constraint("Vertical", 23, 2, 25, 2))
sketch10.addConstraint(Sketcher.Constraint("Vertical", 28, 2, 35, 2))
sketch10.addConstraint(Sketcher.Constraint("Vertical", 33, 2, 36, 2))
sketch10.addConstraint(Sketcher.Constraint("Vertical", 32, 2, 37, 2))
sketch10.addConstraint(Sketcher.Constraint("Vertical", 37, 2, 39, 2))
sketch10.addConstraint(Sketcher.Constraint("Vertical", 42, 2, 49, 2))
sketch10.addConstraint(Sketcher.Constraint("Vertical", 47, 2, 50, 2))
sketch10.addConstraint(Sketcher.Constraint("Vertical", 46, 2, 51, 2))
sketch10.addConstraint(Sketcher.Constraint("Vertical", 51, 2, 53, 2))
sketch10.addConstraint(Sketcher.Constraint("Vertical", 49, 2, 55, 2))
sketch10.addConstraint(Sketcher.Constraint("Vertical", 54, 2, 56, 2))
sketch10.addConstraint(Sketcher.Constraint("Vertical", 53, 2, 57, 2))
sketch10.addConstraint(Sketcher.Constraint("Vertical", 57, 2, 59, 2))
sketch10.addConstraint(Sketcher.Constraint("Equal", 62, 63))
sketch10.addConstraint(Sketcher.Constraint("Equal", 63, 64))
sketch10.addConstraint(Sketcher.Constraint("Equal", 64, 65))
sketch10.addConstraint(Sketcher.Constraint("Angle", 21, Q("60 deg")))
sketch10.addConstraint(Sketcher.Constraint("Diameter", 6, 3.175))
sketch10.addConstraint(Sketcher.Constraint("DistanceY", -1, 1, 6, 3, 25.0))
sketch10.addConstraint(Sketcher.Constraint("DistanceY", -1, 1, 20, 3, 168.0))
sketch10.addConstraint(Sketcher.Constraint("DistanceY", -1, 1, 27, 3, 60.0))
sketch10.addConstraint(Sketcher.Constraint("DistanceY", -1, 1, 41, 3, 95.0))
sketch10.addConstraint(Sketcher.Constraint("DistanceY", -1, 1, 0, 2, 22.0))
sketch10.addConstraint(Sketcher.Constraint("DistanceY", -1, 1, 22, 2, 63.0))
sketch10.addConstraint(Sketcher.Constraint("Diameter", 20, 4.228699))
sketch10.addConstraint(Sketcher.Constraint("DistanceY", -1, 1, 49, 2, 130.2))
sketch10.addConstraint(Sketcher.Constraint("DistanceX", 1, 1, 1, 2, 3.464))
sketch10.addConstraint(Sketcher.Constraint("DistanceX", 6, 3, -1, 1, 11.75))
sketch10.addConstraint(Sketcher.Constraint("DistanceX", 23, 2, 23, 1, 3.464102))
sketch10.addConstraint(Sketcher.Constraint("DistanceX", 0, 2, -1, 1, 13.482))
sketch10.addConstraint(Sketcher.Constraint("DistanceX", 2, 2, -1, 1, 8.286))
sketch10.addConstraint(Sketcher.Constraint("DistanceX", 21, 2, -1, 1, 8.285898))
sketch10.addConstraint(Sketcher.Constraint("DistanceY", -1, 1, 63, 2, 129.9018))
sketch10.addConstraint(Sketcher.Constraint("DistanceY", -1, 1, 66, 2, 130.0982))
sketch10.addConstraint(Sketcher.Constraint("Distance", 62, 3.233162))
sketch10.addConstraint(Sketcher.Constraint("DistanceX", -1, 1, 62, 2, 13.280791))
sketch10.addConstraint(Sketcher.Constraint("DistanceY", -1, 1, 62, 2, 127.152192))
sketch10.addConstraint(Sketcher.Constraint("DistanceX", -1, 1, 64, 2, 13.450879))
sketch10.addConstraint(Sketcher.Constraint("DistanceY", -1, 1, 14, 2, 171.283743))
pocket4 = body.newObject("PartDesign::Pocket", "Pocket003")
pocket4.Profile = sketch10
pocket4.setExpression("Length", "Params.pocket4_length")

doc.recompute()
